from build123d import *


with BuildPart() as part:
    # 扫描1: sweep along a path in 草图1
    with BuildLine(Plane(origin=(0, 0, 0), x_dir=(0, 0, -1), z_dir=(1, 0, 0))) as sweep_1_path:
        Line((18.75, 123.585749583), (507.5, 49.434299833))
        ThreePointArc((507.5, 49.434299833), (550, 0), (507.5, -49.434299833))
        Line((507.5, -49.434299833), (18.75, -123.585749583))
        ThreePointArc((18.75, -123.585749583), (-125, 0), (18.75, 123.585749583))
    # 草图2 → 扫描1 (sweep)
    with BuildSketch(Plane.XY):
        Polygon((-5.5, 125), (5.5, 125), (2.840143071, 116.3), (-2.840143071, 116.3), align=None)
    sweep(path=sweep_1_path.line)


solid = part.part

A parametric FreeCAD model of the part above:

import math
import FreeCAD as App
import Part
import Sketcher

V = App.Vector
Q = App.Units.Quantity


def add_polygon(sketch, points):
    """Adds a closed chain of lines whose ends are joined by coincident constraints."""
    first, n = sketch.GeometryCount, len(points)
    for a, b in zip(points, points[1:] + points[:1]):
        sketch.addGeometry(Part.LineSegment(App.Vector(*a, 0), App.Vector(*b, 0)), False)
    for i in range(n):
        sketch.addConstraint(Sketcher.Constraint("Coincident", first + i, 2, first + (i + 1) % n, 1))

doc = App.newDocument("Part")
params = doc.addObject("Spreadsheet::Sheet", "Params")
for row, (alias, value) in enumerate([
    ("sketch1_width", "11 mm"),
    ("sketch2_radius", "50 mm"),
    ("sketch2_radius2", "125 mm"),
], start=1):
    params.set(f"A{row}", alias)
    params.set(f"B{row}", "=" + value)
    params.setAlias(f"B{row}", alias)

body = doc.addObject("PartDesign::Body", "Body")

# Sketch on XY plane
sketch1 = body.newObject("Sketcher::SketchObject", "Sketch")
sketch1.AttachmentSupport = (doc.getObject("XY_Plane"), [""])
sketch1.MapMode = "FlatFace"
add_polygon(sketch1, [(6, 125), (-6, 125), (-3, 116), (3, 116)])  # lines 0-3
sketch1.addConstraint([
    Sketcher.Constraint("Horizontal", 0),
    Sketcher.Constraint("Horizontal", 2),
    Sketcher.Constraint("Equal", 1, 3),
    Sketcher.Constraint("DistanceX", 0, 2, 0, 1, 11.0),
    Sketcher.Constraint("Angle", 1, Q("-73 deg")),
    Sketcher.Constraint("DistanceY", -1, 1, 0, 2, 125.0),
    Sketcher.Constraint("DistanceX", 0, 2, -1, 1, 5.5),
    Sketcher.Constraint("DistanceY", -1, 1, 1, 2, 116.3),
])
sketch1.setExpression("Constraints[7]", "Params.sketch1_width")

# Sketch on YZ plane
sketch2 = body.newObject("Sketcher::SketchObject", "Sketch001")
sketch2.AttachmentSupport = (doc.getObject("YZ_Plane"), [""])
sketch2.MapMode = "FlatFace"
sketch2.addGeometry([
    Part.LineSegment(V(124, -19, 0), V(49, -508, 0)),
    Part.ArcOfCircle(Part.Circle(V(0, -500, 0), V(0, 0, 1), 50), math.radians(-171), math.radians(-9)),
    Part.LineSegment(V(-49, -508, 0), V(-124, -19, 0)),
    Part.ArcOfCircle(Part.Circle(V(0, 0, 0), V(0, 0, 1), 125), math.radians(-9), math.radians(189)),
], False)
sketch2.addConstraint([
    Sketcher.Constraint("Tangent", 0, 2, 1, 2),
    Sketcher.Constraint("Tangent", 1, 1, 2, 1),
    Sketcher.Constraint("Tangent", 2, 2, 3, 2),
    Sketcher.Constraint("Tangent", 3, 1, 0, 1),
    Sketcher.Constraint("Coincident", 3, 3, -1, 1),
    Sketcher.Constraint("PointOnObject", 1, 3, -2),
    Sketcher.Constraint("Radius", 1, 50.0),
    Sketcher.Constraint("Radius", 3, 125.0),
    Sketcher.Constraint("DistanceY", 1, 3, -1, 1, 500.0),
])
sketch2.setExpression("Constraints[6]", "Params.sketch2_radius")
sketch2.setExpression("Constraints[7]", "Params.sketch2_radius2")
doc.recompute()

additivepipe = body.newObject("PartDesign::AdditivePipe", "AdditivePipe")
additivepipe.Profile = sketch1
additivepipe.Spine = (sketch2, ["Edge1", "Edge2", "Edge3", "Edge4"])

doc.recompute()
